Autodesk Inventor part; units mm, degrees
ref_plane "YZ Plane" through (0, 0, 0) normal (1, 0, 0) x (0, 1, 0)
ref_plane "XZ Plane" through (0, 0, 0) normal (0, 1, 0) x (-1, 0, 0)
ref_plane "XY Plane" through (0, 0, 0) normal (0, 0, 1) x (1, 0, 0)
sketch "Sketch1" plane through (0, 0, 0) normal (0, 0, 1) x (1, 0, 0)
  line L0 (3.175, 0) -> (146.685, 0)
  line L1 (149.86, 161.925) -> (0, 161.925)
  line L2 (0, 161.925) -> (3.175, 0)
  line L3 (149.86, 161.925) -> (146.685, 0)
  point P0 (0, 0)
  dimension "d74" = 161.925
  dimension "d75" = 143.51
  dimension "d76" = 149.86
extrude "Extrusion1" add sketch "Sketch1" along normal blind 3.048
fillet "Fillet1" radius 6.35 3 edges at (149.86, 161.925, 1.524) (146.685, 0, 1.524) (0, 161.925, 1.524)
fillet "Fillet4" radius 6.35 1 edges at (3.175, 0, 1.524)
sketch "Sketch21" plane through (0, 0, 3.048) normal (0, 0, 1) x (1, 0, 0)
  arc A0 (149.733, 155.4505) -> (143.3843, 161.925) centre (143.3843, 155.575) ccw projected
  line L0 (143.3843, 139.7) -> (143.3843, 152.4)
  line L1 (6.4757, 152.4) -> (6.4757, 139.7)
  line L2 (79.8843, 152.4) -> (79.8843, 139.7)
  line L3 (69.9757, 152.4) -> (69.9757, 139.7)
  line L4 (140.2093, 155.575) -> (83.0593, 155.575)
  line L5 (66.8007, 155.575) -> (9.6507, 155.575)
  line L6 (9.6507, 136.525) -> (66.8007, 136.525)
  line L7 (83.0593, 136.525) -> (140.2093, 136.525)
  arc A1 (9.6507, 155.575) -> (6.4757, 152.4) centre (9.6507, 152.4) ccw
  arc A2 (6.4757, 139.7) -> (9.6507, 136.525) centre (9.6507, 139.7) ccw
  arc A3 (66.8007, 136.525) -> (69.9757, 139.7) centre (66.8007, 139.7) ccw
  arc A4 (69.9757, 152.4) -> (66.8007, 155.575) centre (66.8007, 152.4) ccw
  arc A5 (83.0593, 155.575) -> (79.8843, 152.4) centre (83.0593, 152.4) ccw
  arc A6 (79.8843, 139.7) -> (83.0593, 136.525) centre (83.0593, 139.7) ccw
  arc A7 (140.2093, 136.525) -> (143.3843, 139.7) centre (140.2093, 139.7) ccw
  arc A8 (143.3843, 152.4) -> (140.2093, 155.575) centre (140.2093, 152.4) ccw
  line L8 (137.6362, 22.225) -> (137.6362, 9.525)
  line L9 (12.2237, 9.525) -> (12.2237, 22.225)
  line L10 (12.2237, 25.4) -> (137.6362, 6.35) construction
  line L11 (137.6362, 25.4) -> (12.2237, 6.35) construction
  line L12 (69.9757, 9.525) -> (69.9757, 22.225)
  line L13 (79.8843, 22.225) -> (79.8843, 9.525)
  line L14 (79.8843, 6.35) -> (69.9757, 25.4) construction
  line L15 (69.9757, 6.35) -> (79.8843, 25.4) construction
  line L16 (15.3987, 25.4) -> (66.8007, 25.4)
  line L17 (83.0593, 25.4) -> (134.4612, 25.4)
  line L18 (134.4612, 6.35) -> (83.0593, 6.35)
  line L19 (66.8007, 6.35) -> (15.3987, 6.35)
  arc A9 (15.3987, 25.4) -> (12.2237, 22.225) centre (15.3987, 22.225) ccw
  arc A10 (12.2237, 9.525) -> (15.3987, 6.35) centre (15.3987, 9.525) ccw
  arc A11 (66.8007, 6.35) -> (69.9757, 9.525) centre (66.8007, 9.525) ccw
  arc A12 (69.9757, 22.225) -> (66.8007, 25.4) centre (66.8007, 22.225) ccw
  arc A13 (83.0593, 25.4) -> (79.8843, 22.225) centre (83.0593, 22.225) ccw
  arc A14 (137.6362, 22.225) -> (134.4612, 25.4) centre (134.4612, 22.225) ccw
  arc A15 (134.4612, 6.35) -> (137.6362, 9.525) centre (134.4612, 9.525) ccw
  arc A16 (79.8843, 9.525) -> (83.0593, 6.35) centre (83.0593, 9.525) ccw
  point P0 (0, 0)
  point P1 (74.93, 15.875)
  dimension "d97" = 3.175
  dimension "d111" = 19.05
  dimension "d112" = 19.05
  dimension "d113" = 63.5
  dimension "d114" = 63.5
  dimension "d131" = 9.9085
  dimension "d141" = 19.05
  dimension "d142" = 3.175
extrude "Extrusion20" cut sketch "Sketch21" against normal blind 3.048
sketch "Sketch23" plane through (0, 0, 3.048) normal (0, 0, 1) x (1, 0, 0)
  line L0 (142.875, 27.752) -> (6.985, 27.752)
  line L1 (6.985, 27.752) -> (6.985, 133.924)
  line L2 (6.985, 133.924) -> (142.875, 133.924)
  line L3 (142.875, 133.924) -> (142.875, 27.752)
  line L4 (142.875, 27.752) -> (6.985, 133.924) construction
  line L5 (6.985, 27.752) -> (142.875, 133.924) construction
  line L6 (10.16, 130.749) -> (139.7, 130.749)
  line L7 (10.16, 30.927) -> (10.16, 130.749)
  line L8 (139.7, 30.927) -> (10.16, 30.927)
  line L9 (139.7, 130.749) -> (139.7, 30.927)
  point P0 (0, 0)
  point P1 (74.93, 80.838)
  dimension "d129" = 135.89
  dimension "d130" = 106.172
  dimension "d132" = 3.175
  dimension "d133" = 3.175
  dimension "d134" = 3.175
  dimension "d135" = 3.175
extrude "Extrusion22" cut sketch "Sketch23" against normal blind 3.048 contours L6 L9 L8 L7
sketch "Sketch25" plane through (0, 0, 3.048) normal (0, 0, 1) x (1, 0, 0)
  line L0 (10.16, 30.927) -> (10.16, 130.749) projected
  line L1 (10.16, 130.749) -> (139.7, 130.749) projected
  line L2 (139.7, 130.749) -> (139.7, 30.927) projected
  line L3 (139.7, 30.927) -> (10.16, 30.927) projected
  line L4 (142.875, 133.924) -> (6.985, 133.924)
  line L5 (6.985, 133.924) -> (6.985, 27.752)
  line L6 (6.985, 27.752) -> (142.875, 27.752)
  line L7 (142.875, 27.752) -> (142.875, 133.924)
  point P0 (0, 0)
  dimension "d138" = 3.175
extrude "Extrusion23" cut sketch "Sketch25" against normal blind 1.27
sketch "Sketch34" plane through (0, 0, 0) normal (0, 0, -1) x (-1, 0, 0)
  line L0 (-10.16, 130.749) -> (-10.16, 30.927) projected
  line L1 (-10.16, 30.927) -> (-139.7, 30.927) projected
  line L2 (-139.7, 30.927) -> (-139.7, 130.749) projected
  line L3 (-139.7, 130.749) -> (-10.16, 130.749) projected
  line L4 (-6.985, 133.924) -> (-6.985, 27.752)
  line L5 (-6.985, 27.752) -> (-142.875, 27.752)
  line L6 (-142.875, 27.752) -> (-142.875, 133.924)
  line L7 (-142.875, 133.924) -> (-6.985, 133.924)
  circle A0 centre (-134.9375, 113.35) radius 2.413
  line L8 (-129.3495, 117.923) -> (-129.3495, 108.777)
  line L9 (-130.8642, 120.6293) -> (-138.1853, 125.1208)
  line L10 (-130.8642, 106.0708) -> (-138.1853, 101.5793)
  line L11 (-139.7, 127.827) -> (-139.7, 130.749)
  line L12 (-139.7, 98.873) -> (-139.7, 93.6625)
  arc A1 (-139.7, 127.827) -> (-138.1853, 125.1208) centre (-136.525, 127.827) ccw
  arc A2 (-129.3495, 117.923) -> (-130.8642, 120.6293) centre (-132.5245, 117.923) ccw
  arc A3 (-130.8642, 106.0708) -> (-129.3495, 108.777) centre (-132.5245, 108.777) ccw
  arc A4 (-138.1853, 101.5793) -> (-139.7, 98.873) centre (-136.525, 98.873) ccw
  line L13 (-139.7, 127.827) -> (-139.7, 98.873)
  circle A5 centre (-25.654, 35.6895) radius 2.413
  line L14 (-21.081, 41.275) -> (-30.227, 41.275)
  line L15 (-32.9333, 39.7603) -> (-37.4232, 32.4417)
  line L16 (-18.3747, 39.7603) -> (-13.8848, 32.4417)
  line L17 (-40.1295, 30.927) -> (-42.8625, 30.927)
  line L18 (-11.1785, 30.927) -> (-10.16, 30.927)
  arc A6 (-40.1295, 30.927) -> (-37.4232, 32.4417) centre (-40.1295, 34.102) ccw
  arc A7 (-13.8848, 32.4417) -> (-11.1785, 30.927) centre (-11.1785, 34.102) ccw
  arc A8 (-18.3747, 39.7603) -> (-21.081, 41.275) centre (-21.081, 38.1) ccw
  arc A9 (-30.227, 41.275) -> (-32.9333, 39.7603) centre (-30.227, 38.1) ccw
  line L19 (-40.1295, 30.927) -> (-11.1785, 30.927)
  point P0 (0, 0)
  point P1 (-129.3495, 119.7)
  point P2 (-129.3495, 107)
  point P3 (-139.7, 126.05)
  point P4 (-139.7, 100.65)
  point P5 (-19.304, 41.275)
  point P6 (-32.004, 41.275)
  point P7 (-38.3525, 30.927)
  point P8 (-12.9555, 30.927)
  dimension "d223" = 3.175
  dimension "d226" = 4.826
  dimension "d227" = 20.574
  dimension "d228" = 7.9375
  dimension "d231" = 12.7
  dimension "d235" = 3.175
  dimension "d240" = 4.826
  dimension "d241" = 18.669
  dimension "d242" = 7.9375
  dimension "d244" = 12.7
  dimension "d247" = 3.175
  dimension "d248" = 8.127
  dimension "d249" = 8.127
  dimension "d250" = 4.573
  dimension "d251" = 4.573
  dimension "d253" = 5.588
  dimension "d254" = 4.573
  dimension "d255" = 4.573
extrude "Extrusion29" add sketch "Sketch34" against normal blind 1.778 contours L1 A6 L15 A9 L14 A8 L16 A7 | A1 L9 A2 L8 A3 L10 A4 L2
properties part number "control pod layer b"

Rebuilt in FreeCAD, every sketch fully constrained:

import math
import FreeCAD as App
import Part
import Sketcher
from FreeCAD import Vector
Q = App.Units.Quantity


def edges_at(feature, points):
    """Names of the edges that pass closest to the given points."""
    edges = feature.Shape.Edges
    near = lambda p: min(range(len(edges)), key=lambda i: edges[i].distToShape(Part.Vertex(*p))[0])
    return sorted({f"Edge{near(p) + 1}" for p in points})


def add_polygon(sketch, points):
    """Adds a closed chain of lines whose ends are joined by coincident constraints."""
    first, n = sketch.GeometryCount, len(points)
    for a, b in zip(points, points[1:] + points[:1]):
        sketch.addGeometry(Part.LineSegment(App.Vector(*a, 0), App.Vector(*b, 0)), False)
    for i in range(n):
        sketch.addConstraint(Sketcher.Constraint("Coincident", first + i, 2, first + (i + 1) % n, 1))

doc = App.newDocument("Part")
params = doc.addObject("Spreadsheet::Sheet", "Params")
for row, (alias, value) in enumerate([
    ("sketch1_width", "5.9 in"),
    ("sketch1_width2", "5.65 in"),
    ("pad1_length", "0.12 in"),
    ("fillet_radius", "0.25 in"),
    ("fillet2_radius", "0.25 in"),
    ("sketch2_radius", "0.125 in"),
    ("sketch2_width", "2.25 in"),
    ("pocket1_length", "0.12 in"),
    ("sketch3_width", "5.1 in"),
    ("sketch3_height", "3.93 in"),
    ("pocket2_length", "0.12 in"),
    ("sketch4_width", "5.1 in"),
    ("sketch4_height", "4.18 in"),
    ("pocket3_length", "0.05 in"),
    ("sketch5_diameter", "0.19 in"),
    ("sketch5_radius", "0.125 in"),
    ("pad2_length", "0.07 in"),
], start=1):
    params.set(f"A{row}", alias)
    params.set(f"B{row}", "=" + value)
    params.setAlias(f"B{row}", alias)

body = doc.addObject("PartDesign::Body", "Body")

# Sketch on XY plane
sketch1 = doc.addObject("Sketcher::SketchObject", "Sketch")
body.addObject(sketch1)
sketch1.AttachmentSupport = (doc.XY_Plane, [""])
sketch1.MapMode = "FlatFace"
add_polygon(sketch1, [(0, 162), (3, 0), (147, 0), (150, 162)])  # lines 0-3
sketch1.addConstraint(Sketcher.Constraint("Horizontal", 1))
sketch1.addConstraint(Sketcher.Constraint("Horizontal", 3))
sketch1.addConstraint(Sketcher.Constraint("PointOnObject", 0, 2, -1))
sketch1.addConstraint(Sketcher.Constraint("PointOnObject", 3, 2, -2))
sketch1.addConstraint(Sketcher.Constraint("Equal", 0, 2))
sketch1.addConstraint(Sketcher.Constraint("DistanceX", 3, 2, 3, 1, Q("5.9 in")))
sketch1.addConstraint(Sketcher.Constraint("DistanceX", 1, 1, 1, 2, Q("5.65 in")))
sketch1.addConstraint(Sketcher.Constraint("DistanceY", -1, 1, 2, 2, Q("6.375 in")))
sketch1.setExpression("Constraints[9]", "Params.sketch1_width")
sketch1.setExpression("Constraints[10]", "Params.sketch1_width2")
pad1 = doc.addObject("PartDesign::Pad", "Pad")
body.addObject(pad1)
pad1.Profile = sketch1
pad1.setExpression("Length", "Params.pad1_length")
doc.recompute()

fillet = doc.addObject("PartDesign::Fillet", "Fillet")
body.addObject(fillet)
fillet.Base = (pad1, edges_at(pad1, [(149.86, 161.925, 1.524), (146.685, 0, 1.524), (0, 161.925, 1.524)]))
fillet.setExpression("Radius", "Params.fillet_radius")
doc.recompute()

fillet2 = doc.addObject("PartDesign::Fillet", "Fillet001")
body.addObject(fillet2)
fillet2.Base = (fillet, edges_at(fillet, [(3.175, 0, 1.524)]))
fillet2.setExpression("Radius", "Params.fillet2_radius")

# Sketch on XY plane
sketch2 = doc.addObject("Sketcher::SketchObject", "Sketch001")
body.addObject(sketch2)
sketch2.AttachmentSupport = (doc.XY_Plane, [""])
sketch2.MapMode = "FlatFace"
sketch2.AttachmentOffset = App.Placement(Vector(0, 0, 0.12 * 25.4), App.Rotation())
sketch2.addGeometry(Part.ArcOfCircle(Part.Circle(Vector(140.2, 139.7, 0), Vector(0, 0, 1), 3.2), math.radians(-90), math.radians(0)), False)
sketch2.addGeometry(Part.LineSegment(Vector(143.4, 139.7, 0), Vector(143.4, 152.4, 0)), False)
sketch2.addGeometry(Part.ArcOfCircle(Part.Circle(Vector(140.2, 152.4, 0), Vector(0, 0, 1), 3.2), math.radians(0), math.radians(90)), False)
sketch2.addGeometry(Part.LineSegment(Vector(140.2, 155.6, 0), Vector(83.1, 155.6, 0)), False)
sketch2.addGeometry(Part.ArcOfCircle(Part.Circle(Vector(83.1, 152.4, 0), Vector(0, 0, 1), 3.2), math.radians(90), math.radians(180)), False)
sketch2.addGeometry(Part.LineSegment(Vector(79.9, 152.4, 0), Vector(79.9, 139.7, 0)), False)
sketch2.addGeometry(Part.ArcOfCircle(Part.Circle(Vector(83.1, 139.7, 0), Vector(0, 0, 1), 3.2), math.radians(180), math.radians(270)), False)
sketch2.addGeometry(Part.LineSegment(Vector(83.1, 136.5, 0), Vector(140.2, 136.5, 0)), False)
sketch2.addGeometry(Part.ArcOfCircle(Part.Circle(Vector(9.7, 152.4, 0), Vector(0, 0, 1), 3.2), math.radians(90), math.radians(180)), False)
sketch2.addGeometry(Part.LineSegment(Vector(6.5, 152.4, 0), Vector(6.5, 139.7, 0)), False)
sketch2.addGeometry(Part.ArcOfCircle(Part.Circle(Vector(9.7, 139.7, 0), Vector(0, 0, 1), 3.2), math.radians(180), math.radians(270)), False)
sketch2.addGeometry(Part.LineSegment(Vector(9.7, 136.5, 0), Vector(66.8, 136.5, 0)), False)
sketch2.addGeometry(Part.ArcOfCircle(Part.Circle(Vector(66.8, 139.7, 0), Vector(0, 0, 1), 3.2), math.radians(-90), math.radians(0)), False)
sketch2.addGeometry(Part.LineSegment(Vector(70, 139.7, 0), Vector(70, 152.4, 0)), False)
sketch2.addGeometry(Part.ArcOfCircle(Part.Circle(Vector(66.8, 152.4, 0), Vector(0, 0, 1), 3.2), math.radians(0), math.radians(90)), False)
sketch2.addGeometry(Part.LineSegment(Vector(66.8, 155.6, 0), Vector(9.7, 155.6, 0)), False)
sketch2.addGeometry(Part.LineSegment(Vector(137.6, 9.5, 0), Vector(137.6, 22.2, 0)), False)
sketch2.addGeometry(Part.ArcOfCircle(Part.Circle(Vector(134.5, 22.2, 0), Vector(0, 0, 1), 3.2), math.radians(0), math.radians(90)), False)
sketch2.addGeometry(Part.LineSegment(Vector(134.5, 25.4, 0), Vector(83.1, 25.4, 0)), False)
sketch2.addGeometry(Part.ArcOfCircle(Part.Circle(Vector(83.1, 22.2, 0), Vector(0, 0, 1), 3.2), math.radians(90), math.radians(180)), False)
sketch2.addGeometry(Part.LineSegment(Vector(79.9, 22.2, 0), Vector(79.9, 9.5, 0)), False)
sketch2.addGeometry(Part.ArcOfCircle(Part.Circle(Vector(83.1, 9.5, 0), Vector(0, 0, 1), 3.2), math.radians(180), math.radians(270)), False)
sketch2.addGeometry(Part.LineSegment(Vector(83.1, 6.3, 0), Vector(134.5, 6.3, 0)), False)
sketch2.addGeometry(Part.ArcOfCircle(Part.Circle(Vector(134.5, 9.5, 0), Vector(0, 0, 1), 3.2), math.radians(-90), math.radians(0)), False)
sketch2.addGeometry(Part.LineSegment(Vector(12.2, 22.2, 0), Vector(12.2, 9.5, 0)), False)
sketch2.addGeometry(Part.ArcOfCircle(Part.Circle(Vector(15.4, 9.5, 0), Vector(0, 0, 1), 3.2), math.radians(180), math.radians(270)), False)
sketch2.addGeometry(Part.LineSegment(Vector(15.4, 6.3, 0), Vector(66.8, 6.3, 0)), False)
sketch2.addGeometry(Part.ArcOfCircle(Part.Circle(Vector(66.8, 9.5, 0), Vector(0, 0, 1), 3.2), math.radians(-90), math.radians(0)), False)
sketch2.addGeometry(Part.LineSegment(Vector(70, 9.5, 0), Vector(70, 22.2, 0)), False)
sketch2.addGeometry(Part.ArcOfCircle(Part.Circle(Vector(66.8, 22.2, 0), Vector(0, 0, 1), 3.2), math.radians(0), math.radians(90)), False)
sketch2.addGeometry(Part.LineSegment(Vector(66.8, 25.4, 0), Vector(15.4, 25.4, 0)), False)
sketch2.addGeometry(Part.ArcOfCircle(Part.Circle(Vector(15.4, 22.2, 0), Vector(0, 0, 1), 3.2), math.radians(90), math.radians(180)), False)
sketch2.addConstraint(Sketcher.Constraint("Tangent", 0, 2, 1, 1))
sketch2.addConstraint(Sketcher.Constraint("Tangent", 1, 2, 2, 1))
sketch2.addConstraint(Sketcher.Constraint("Tangent", 2, 2, 3, 1))
sketch2.addConstraint(Sketcher.Constraint("Tangent", 3, 2, 4, 1))
sketch2.addConstraint(Sketcher.Constraint("Tangent", 4, 2, 5, 1))
sketch2.addConstraint(Sketcher.Constraint("Tangent", 5, 2, 6, 1))
sketch2.addConstraint(Sketcher.Constraint("Tangent", 6, 2, 7, 1))
sketch2.addConstraint(Sketcher.Constraint("Tangent", 7, 2, 0, 1))
sketch2.addConstraint(Sketcher.Constraint("Tangent", 8, 2, 9, 1))
sketch2.addConstraint(Sketcher.Constraint("Tangent", 9, 2, 10, 1))
sketch2.addConstraint(Sketcher.Constraint("Tangent", 10, 2, 11, 1))
sketch2.addConstraint(Sketcher.Constraint("Tangent", 11, 2, 12, 1))
sketch2.addConstraint(Sketcher.Constraint("Tangent", 12, 2, 13, 1))
sketch2.addConstraint(Sketcher.Constraint("Tangent", 13, 2, 14, 1))
sketch2.addConstraint(Sketcher.Constraint("Tangent", 14, 2, 15, 1))
sketch2.addConstraint(Sketcher.Constraint("Tangent", 15, 2, 8, 1))
sketch2.addConstraint(Sketcher.Constraint("Tangent", 16, 2, 17, 1))
sketch2.addConstraint(Sketcher.Constraint("Tangent", 17, 2, 18, 1))
sketch2.addConstraint(Sketcher.Constraint("Tangent", 18, 2, 19, 1))
sketch2.addConstraint(Sketcher.Constraint("Tangent", 19, 2, 20, 1))
sketch2.addConstraint(Sketcher.Constraint("Tangent", 20, 2, 21, 1))
sketch2.addConstraint(Sketcher.Constraint("Tangent", 21, 2, 22, 1))
sketch2.addConstraint(Sketcher.Constraint("Tangent", 22, 2, 23, 1))
sketch2.addConstraint(Sketcher.Constraint("Tangent", 23, 2, 16, 1))
sketch2.addConstraint(Sketcher.Constraint("Tangent", 24, 2, 25, 1))
sketch2.addConstraint(Sketcher.Constraint("Tangent", 25, 2, 26, 1))
sketch2.addConstraint(Sketcher.Constraint("Tangent", 26, 2, 27, 1))
sketch2.addConstraint(Sketcher.Constraint("Tangent", 27, 2, 28, 1))
sketch2.addConstraint(Sketcher.Constraint("Tangent", 28, 2, 29, 1))
sketch2.addConstraint(Sketcher.Constraint("Tangent", 29, 2, 30, 1))
sketch2.addConstraint(Sketcher.Constraint("Tangent", 30, 2, 31, 1))
sketch2.addConstraint(Sketcher.Constraint("Tangent", 31, 2, 24, 1))
sketch2.addConstraint(Sketcher.Constraint("Vertical", 1))
sketch2.addConstraint(Sketcher.Constraint("Horizontal", 3))
sketch2.addConstraint(Sketcher.Constraint("Vertical", 5))
sketch2.addConstraint(Sketcher.Constraint("Horizontal", 7))
sketch2.addConstraint(Sketcher.Constraint("Vertical", 9))
sketch2.addConstraint(Sketcher.Constraint("Horizontal", 11))
sketch2.addConstraint(Sketcher.Constraint("Vertical", 13))
sketch2.addConstraint(Sketcher.Constraint("Horizontal", 15))
sketch2.addConstraint(Sketcher.Constraint("Vertical", 16))
sketch2.addConstraint(Sketcher.Constraint("Horizontal", 18))
sketch2.addConstraint(Sketcher.Constraint("Vertical", 20))
sketch2.addConstraint(Sketcher.Constraint("Horizontal", 22))
sketch2.addConstraint(Sketcher.Constraint("Vertical", 24))
sketch2.addConstraint(Sketcher.Constraint("Horizontal", 26))
sketch2.addConstraint(Sketcher.Constraint("Vertical", 28))
sketch2.addConstraint(Sketcher.Constraint("Horizontal", 30))
sketch2.addConstraint(Sketcher.Constraint("Equal", 0, 2))
sketch2.addConstraint(Sketcher.Constraint("Equal", 2, 4))
sketch2.addConstraint(Sketcher.Constraint("Equal", 4, 6))
sketch2.addConstraint(Sketcher.Constraint("Equal", 6, 8))
sketch2.addConstraint(Sketcher.Constraint("Equal", 8, 10))
sketch2.addConstraint(Sketcher.Constraint("Equal", 10, 12))
sketch2.addConstraint(Sketcher.Constraint("Equal", 12, 14))
sketch2.addConstraint(Sketcher.Constraint("Equal", 14, 17))
sketch2.addConstraint(Sketcher.Constraint("Equal", 17, 19))
sketch2.addConstraint(Sketcher.Constraint("Equal", 19, 21))
sketch2.addConstraint(Sketcher.Constraint("Equal", 21, 23))
sketch2.addConstraint(Sketcher.Constraint("Equal", 23, 25))
sketch2.addConstraint(Sketcher.Constraint("Equal", 25, 27))
sketch2.addConstraint(Sketcher.Constraint("Equal", 27, 29))
sketch2.addConstraint(Sketcher.Constraint("Equal", 29, 31))
sketch2.addConstraint(Sketcher.Constraint("Horizontal", 4, 3, 8, 3))
sketch2.addConstraint(Sketcher.Constraint("Horizontal", 6, 3, 10, 3))
sketch2.addConstraint(Sketcher.Constraint("Horizontal", 23, 3, 25, 3))
sketch2.addConstraint(Sketcher.Constraint("Horizontal", 19, 3, 29, 3))
sketch2.addConstraint(Sketcher.Constraint("Vertical", 6, 3, 19, 3))
sketch2.addConstraint(Sketcher.Constraint("Vertical", 14, 3, 27, 3))
sketch2.addConstraint(Sketcher.Constraint("Equal", 7, 11))
sketch2.addConstraint(Sketcher.Constraint("Equal", 22, 26))
sketch2.addConstraint(Sketcher.Constraint("Equal", 13, 16))
sketch2.addConstraint(Sketcher.Constraint("Radius", 0, Q("0.125 in")))
sketch2.addConstraint(Sketcher.Constraint("DistanceY", 7, 2, 2, 2, Q("0.75 in")))
sketch2.addConstraint(Sketcher.Constraint("DistanceY", -1, 1, 2, 3, Q("6 in")))
sketch2.addConstraint(Sketcher.Constraint("DistanceY", -1, 1, 17, 2, Q("1 in")))
sketch2.addConstraint(Sketcher.Constraint("DistanceX", 3, 2, 3, 1, Q("2.25 in")))
sketch2.addConstraint(Sketcher.Constraint("DistanceX", 12, 2, 5, 2, Q("0.3901 in")))
sketch2.addConstraint(Sketcher.Constraint("DistanceX", 18, 2, 18, 1, Q("2.0237 in")))
sketch2.addConstraint(Sketcher.Constraint("DistanceX", -1, 1, 0, 3, Q("140.2093 mm")))
sketch2.setExpression("Constraints[72]", "Params.sketch2_radius")
sketch2.setExpression("Constraints[76]", "Params.sketch2_width")
pocket1 = doc.addObject("PartDesign::Pocket", "Pocket")
body.addObject(pocket1)
pocket1.Profile = sketch2
pocket1.setExpression("Length", "Params.pocket1_length")

# Sketch on XY plane
sketch3 = doc.addObject("Sketcher::SketchObject", "Sketch002")
body.addObject(sketch3)
sketch3.AttachmentSupport = (doc.XY_Plane, [""])
sketch3.MapMode = "FlatFace"
sketch3.AttachmentOffset = App.Placement(Vector(0, 0, 0.12 * 25.4), App.Rotation())
add_polygon(sketch3, [(140, 131), (10, 131), (10, 31), (140, 31)])  # lines 0-3
sketch3.addConstraint(Sketcher.Constraint("Horizontal", 0))
sketch3.addConstraint(Sketcher.Constraint("Vertical", 1))
sketch3.addConstraint(Sketcher.Constraint("Horizontal", 2))
sketch3.addConstraint(Sketcher.Constraint("Vertical", 3))
sketch3.addConstraint(Sketcher.Constraint("DistanceX", 0, 2, 0, 1, Q("5.1 in")))
sketch3.addConstraint(Sketcher.Constraint("DistanceY", 1, 2, 1, 1, Q("3.93 in")))
sketch3.addConstraint(Sketcher.Constraint("DistanceX", -1, 1, 0, 2, Q("0.4 in")))
sketch3.addConstraint(Sketcher.Constraint("DistanceY", -1, 1, 0, 2, Q("5.1476 in")))
sketch3.setExpression("Constraints[8]", "Params.sketch3_width")
sketch3.setExpression("Constraints[9]", "Params.sketch3_height")
pocket2 = doc.addObject("PartDesign::Pocket", "Pocket001")
body.addObject(pocket2)
pocket2.Profile = sketch3
pocket2.setExpression("Length", "Params.pocket2_length")

# Sketch on XY plane
sketch4 = doc.addObject("Sketcher::SketchObject", "Sketch003")
body.addObject(sketch4)
sketch4.AttachmentSupport = (doc.XY_Plane, [""])
sketch4.MapMode = "FlatFace"
sketch4.AttachmentOffset = App.Placement(Vector(0, 0, 0.12 * 25.4), App.Rotation())
add_polygon(sketch4, [(143, 28), (143, 134), (7, 134), (7, 28)])  # lines 0-3
add_polygon(sketch4, [(140, 31), (10, 31), (10, 131), (140, 131)])  # lines 4-7
sketch4.addConstraint(Sketcher.Constraint("Vertical", 0))
sketch4.addConstraint(Sketcher.Constraint("Horizontal", 1))
sketch4.addConstraint(Sketcher.Constraint("Vertical", 2))
sketch4.addConstraint(Sketcher.Constraint("Horizontal", 3))
sketch4.addConstraint(Sketcher.Constraint("Horizontal", 4))
sketch4.addConstraint(Sketcher.Constraint("Vertical", 5))
sketch4.addConstraint(Sketcher.Constraint("Horizontal", 6))
sketch4.addConstraint(Sketcher.Constraint("Vertical", 7))
sketch4.addConstraint(Sketcher.Constraint("DistanceX", 4, 2, 4, 1, Q("5.1 in")))
sketch4.addConstraint(Sketcher.Constraint("DistanceX", 2, 2, 4, 2, Q("0.125 in")))
sketch4.addConstraint(Sketcher.Constraint("DistanceY", 2, 2, 4, 2, Q("0.125 in")))
sketch4.addConstraint(Sketcher.Constraint("DistanceY", 5, 2, 1, 2, Q("0.125 in")))
sketch4.addConstraint(Sketcher.Constraint("DistanceX", 6, 2, 0, 2, Q("0.125 in")))
sketch4.addConstraint(Sketcher.Constraint("DistanceY", 0, 1, 0, 2, Q("4.18 in")))
sketch4.addConstraint(Sketcher.Constraint("DistanceX", -1, 1, 4, 2, Q("0.4 in")))
sketch4.addConstraint(Sketcher.Constraint("DistanceY", -1, 1, 0, 2, Q("5.2726 in")))
sketch4.setExpression("Constraints[16]", "Params.sketch4_width")
sketch4.setExpression("Constraints[21]", "Params.sketch4_height")
pocket3 = doc.addObject("PartDesign::Pocket", "Pocket002")
body.addObject(pocket3)
pocket3.Profile = sketch4
pocket3.setExpression("Length", "Params.pocket3_length")

# Sketch on XY plane
sketch5 = doc.addObject("Sketcher::SketchObject", "Sketch004")
body.addObject(sketch5)
sketch5.AttachmentSupport = (doc.XY_Plane, [""])
sketch5.MapMode = "FlatFace"
sketch5.addGeometry(Part.LineSegment(Vector(40.1, 30.9, 0), Vector(11.2, 30.9, 0)), False)
sketch5.addGeometry(Part.ArcOfCircle(Part.Circle(Vector(11.2, 34.1, 0), Vector(0, 0, 1), 3.2), math.radians(-90), math.radians(-32)), False)
sketch5.addGeometry(Part.LineSegment(Vector(13.9, 32.4, 0), Vector(18.4, 39.8, 0)), False)
sketch5.addGeometry(Part.ArcOfCircle(Part.Circle(Vector(21.1, 38.1, 0), Vector(0, 0, 1), 3.2), math.radians(90), math.radians(148)), False)
sketch5.addGeometry(Part.LineSegment(Vector(21.1, 41.3, 0), Vector(30.2, 41.3, 0)), False)
sketch5.addGeometry(Part.ArcOfCircle(Part.Circle(Vector(30.2, 38.1, 0), Vector(0, 0, 1), 3.2), math.radians(32), math.radians(90)), False)
sketch5.addGeometry(Part.LineSegment(Vector(32.9, 39.8, 0), Vector(37.4, 32.4, 0)), False)
sketch5.addGeometry(Part.ArcOfCircle(Part.Circle(Vector(40.1, 34.1, 0), Vector(0, 0, 1), 3.2), math.radians(-148), math.radians(-90)), False)
sketch5.addGeometry(Part.Circle(Vector(25.7, 35.7, 0), Vector(0, 0, 1), 2.4), False)
sketch5.addGeometry(Part.ArcOfCircle(Part.Circle(Vector(136.5, 127.8, 0), Vector(0, 0, 1), 3.2), math.radians(-58), math.radians(0)), False)
sketch5.addGeometry(Part.LineSegment(Vector(139.7, 127.8, 0), Vector(139.7, 98.9, 0)), False)
sketch5.addGeometry(Part.ArcOfCircle(Part.Circle(Vector(136.5, 98.9, 0), Vector(0, 0, 1), 3.2), math.radians(0), math.radians(58)), False)
sketch5.addGeometry(Part.LineSegment(Vector(138.2, 101.6, 0), Vector(130.9, 106.1, 0)), False)
sketch5.addGeometry(Part.ArcOfCircle(Part.Circle(Vector(132.5, 108.8, 0), Vector(0, 0, 1), 3.2), math.radians(180), math.radians(238)), False)
sketch5.addGeometry(Part.LineSegment(Vector(129.3, 108.8, 0), Vector(129.3, 117.9, 0)), False)
sketch5.addGeometry(Part.ArcOfCircle(Part.Circle(Vector(132.5, 117.9, 0), Vector(0, 0, 1), 3.2), math.radians(122), math.radians(180)), False)
sketch5.addGeometry(Part.LineSegment(Vector(130.9, 120.6, 0), Vector(138.2, 125.1, 0)), False)
sketch5.addGeometry(Part.Circle(Vector(134.9, 113.3, 0), Vector(0, 0, 1), 2.4), False)
sketch5.addConstraint(Sketcher.Constraint("Tangent", 0, 2, 1, 1))
sketch5.addConstraint(Sketcher.Constraint("Tangent", 1, 2, 2, 1))
sketch5.addConstraint(Sketcher.Constraint("Tangent", 2, 2, 3, 2))
sketch5.addConstraint(Sketcher.Constraint("Tangent", 3, 1, 4, 1))
sketch5.addConstraint(Sketcher.Constraint("Tangent", 4, 2, 5, 2))
sketch5.addConstraint(Sketcher.Constraint("Tangent", 5, 1, 6, 1))
sketch5.addConstraint(Sketcher.Constraint("Tangent", 6, 2, 7, 1))
sketch5.addConstraint(Sketcher.Constraint("Tangent", 7, 2, 0, 1))
sketch5.addConstraint(Sketcher.Constraint("Tangent", 9, 2, 10, 1))
sketch5.addConstraint(Sketcher.Constraint("Tangent", 10, 2, 11, 1))
sketch5.addConstraint(Sketcher.Constraint("Tangent", 11, 2, 12, 1))
sketch5.addConstraint(Sketcher.Constraint("Tangent", 12, 2, 13, 2))
sketch5.addConstraint(Sketcher.Constraint("Tangent", 13, 1, 14, 1))
sketch5.addConstraint(Sketcher.Constraint("Tangent", 14, 2, 15, 2))
sketch5.addConstraint(Sketcher.Constraint("Tangent", 15, 1, 16, 1))
sketch5.addConstraint(Sketcher.Constraint("Tangent", 16, 2, 9, 1))
sketch5.addConstraint(Sketcher.Constraint("Horizontal", 0))
sketch5.addConstraint(Sketcher.Constraint("Horizontal", 4))
sketch5.addConstraint(Sketcher.Constraint("Vertical", 10))
sketch5.addConstraint(Sketcher.Constraint("Vertical", 14))
sketch5.addConstraint(Sketcher.Constraint("Equal", 1, 3))
sketch5.addConstraint(Sketcher.Constraint("Equal", 3, 5))
sketch5.addConstraint(Sketcher.Constraint("Equal", 5, 7))
sketch5.addConstraint(Sketcher.Constraint("Equal", 7, 9))
sketch5.addConstraint(Sketcher.Constraint("Equal", 9, 11))
sketch5.addConstraint(Sketcher.Constraint("Equal", 11, 13))
sketch5.addConstraint(Sketcher.Constraint("Equal", 13, 15))
sketch5.addConstraint(Sketcher.Constraint("Equal", 8, 17))
sketch5.addConstraint(Sketcher.Constraint("Perpendicular", 2, 12))
sketch5.addConstraint(Sketcher.Constraint("Perpendicular", 6, 16))
sketch5.addConstraint(Sketcher.Constraint("Horizontal", 2, 2, 5, 1))
sketch5.addConstraint(Sketcher.Constraint("Equal", 4, 14))
sketch5.addConstraint(Sketcher.Constraint("Diameter", 8, Q("0.19 in")))
sketch5.addConstraint(Sketcher.Constraint("Radius", 1, Q("0.125 in")))
sketch5.addConstraint(Sketcher.Constraint("DistanceX", 13, 1, 17, 3, Q("0.22 in")))
sketch5.addConstraint(Sketcher.Constraint("DistanceY", -1, 1, 3, 3, Q("1.5 in")))
sketch5.addConstraint(Sketcher.Constraint("DistanceX", -1, 1, 9, 2, Q("5.5 in")))
sketch5.addConstraint(Sketcher.Constraint("DistanceX", -1, 1, 8, 3, Q("1.01 in")))
sketch5.addConstraint(Sketcher.Constraint("Angle", 12, Q("148.4709 deg")))
sketch5.addConstraint(Sketcher.Constraint("DistanceX", 3, 3, 8, 3, Q("4.573 mm")))
sketch5.addConstraint(Sketcher.Constraint("DistanceX", 8, 3, 5, 3, Q("4.573 mm")))
sketch5.addConstraint(Sketcher.Constraint("DistanceY", 13, 3, 9, 3, Q("0.75 in")))
sketch5.addConstraint(Sketcher.Constraint("DistanceY", 13, 3, 17, 3, Q("4.573 mm")))
sketch5.addConstraint(Sketcher.Constraint("DistanceY", 7, 3, 17, 3, Q("3.12 in")))
sketch5.addConstraint(Sketcher.Constraint("DistanceX", 0, 2, 0, 1, Q("1.1398 in")))
sketch5.addConstraint(Sketcher.Constraint("DistanceY", 1, 3, 8, 3, Q("0.0625 in")))
sketch5.setExpression("Constraints[32]", "Params.sketch5_diameter")
sketch5.setExpression("Constraints[33]", "Params.sketch5_radius")
pad2 = doc.addObject("PartDesign::Pad", "Pad001")
body.addObject(pad2)
pad2.Profile = sketch5
pad2.setExpression("Length", "Params.pad2_length")

doc.recompute()
